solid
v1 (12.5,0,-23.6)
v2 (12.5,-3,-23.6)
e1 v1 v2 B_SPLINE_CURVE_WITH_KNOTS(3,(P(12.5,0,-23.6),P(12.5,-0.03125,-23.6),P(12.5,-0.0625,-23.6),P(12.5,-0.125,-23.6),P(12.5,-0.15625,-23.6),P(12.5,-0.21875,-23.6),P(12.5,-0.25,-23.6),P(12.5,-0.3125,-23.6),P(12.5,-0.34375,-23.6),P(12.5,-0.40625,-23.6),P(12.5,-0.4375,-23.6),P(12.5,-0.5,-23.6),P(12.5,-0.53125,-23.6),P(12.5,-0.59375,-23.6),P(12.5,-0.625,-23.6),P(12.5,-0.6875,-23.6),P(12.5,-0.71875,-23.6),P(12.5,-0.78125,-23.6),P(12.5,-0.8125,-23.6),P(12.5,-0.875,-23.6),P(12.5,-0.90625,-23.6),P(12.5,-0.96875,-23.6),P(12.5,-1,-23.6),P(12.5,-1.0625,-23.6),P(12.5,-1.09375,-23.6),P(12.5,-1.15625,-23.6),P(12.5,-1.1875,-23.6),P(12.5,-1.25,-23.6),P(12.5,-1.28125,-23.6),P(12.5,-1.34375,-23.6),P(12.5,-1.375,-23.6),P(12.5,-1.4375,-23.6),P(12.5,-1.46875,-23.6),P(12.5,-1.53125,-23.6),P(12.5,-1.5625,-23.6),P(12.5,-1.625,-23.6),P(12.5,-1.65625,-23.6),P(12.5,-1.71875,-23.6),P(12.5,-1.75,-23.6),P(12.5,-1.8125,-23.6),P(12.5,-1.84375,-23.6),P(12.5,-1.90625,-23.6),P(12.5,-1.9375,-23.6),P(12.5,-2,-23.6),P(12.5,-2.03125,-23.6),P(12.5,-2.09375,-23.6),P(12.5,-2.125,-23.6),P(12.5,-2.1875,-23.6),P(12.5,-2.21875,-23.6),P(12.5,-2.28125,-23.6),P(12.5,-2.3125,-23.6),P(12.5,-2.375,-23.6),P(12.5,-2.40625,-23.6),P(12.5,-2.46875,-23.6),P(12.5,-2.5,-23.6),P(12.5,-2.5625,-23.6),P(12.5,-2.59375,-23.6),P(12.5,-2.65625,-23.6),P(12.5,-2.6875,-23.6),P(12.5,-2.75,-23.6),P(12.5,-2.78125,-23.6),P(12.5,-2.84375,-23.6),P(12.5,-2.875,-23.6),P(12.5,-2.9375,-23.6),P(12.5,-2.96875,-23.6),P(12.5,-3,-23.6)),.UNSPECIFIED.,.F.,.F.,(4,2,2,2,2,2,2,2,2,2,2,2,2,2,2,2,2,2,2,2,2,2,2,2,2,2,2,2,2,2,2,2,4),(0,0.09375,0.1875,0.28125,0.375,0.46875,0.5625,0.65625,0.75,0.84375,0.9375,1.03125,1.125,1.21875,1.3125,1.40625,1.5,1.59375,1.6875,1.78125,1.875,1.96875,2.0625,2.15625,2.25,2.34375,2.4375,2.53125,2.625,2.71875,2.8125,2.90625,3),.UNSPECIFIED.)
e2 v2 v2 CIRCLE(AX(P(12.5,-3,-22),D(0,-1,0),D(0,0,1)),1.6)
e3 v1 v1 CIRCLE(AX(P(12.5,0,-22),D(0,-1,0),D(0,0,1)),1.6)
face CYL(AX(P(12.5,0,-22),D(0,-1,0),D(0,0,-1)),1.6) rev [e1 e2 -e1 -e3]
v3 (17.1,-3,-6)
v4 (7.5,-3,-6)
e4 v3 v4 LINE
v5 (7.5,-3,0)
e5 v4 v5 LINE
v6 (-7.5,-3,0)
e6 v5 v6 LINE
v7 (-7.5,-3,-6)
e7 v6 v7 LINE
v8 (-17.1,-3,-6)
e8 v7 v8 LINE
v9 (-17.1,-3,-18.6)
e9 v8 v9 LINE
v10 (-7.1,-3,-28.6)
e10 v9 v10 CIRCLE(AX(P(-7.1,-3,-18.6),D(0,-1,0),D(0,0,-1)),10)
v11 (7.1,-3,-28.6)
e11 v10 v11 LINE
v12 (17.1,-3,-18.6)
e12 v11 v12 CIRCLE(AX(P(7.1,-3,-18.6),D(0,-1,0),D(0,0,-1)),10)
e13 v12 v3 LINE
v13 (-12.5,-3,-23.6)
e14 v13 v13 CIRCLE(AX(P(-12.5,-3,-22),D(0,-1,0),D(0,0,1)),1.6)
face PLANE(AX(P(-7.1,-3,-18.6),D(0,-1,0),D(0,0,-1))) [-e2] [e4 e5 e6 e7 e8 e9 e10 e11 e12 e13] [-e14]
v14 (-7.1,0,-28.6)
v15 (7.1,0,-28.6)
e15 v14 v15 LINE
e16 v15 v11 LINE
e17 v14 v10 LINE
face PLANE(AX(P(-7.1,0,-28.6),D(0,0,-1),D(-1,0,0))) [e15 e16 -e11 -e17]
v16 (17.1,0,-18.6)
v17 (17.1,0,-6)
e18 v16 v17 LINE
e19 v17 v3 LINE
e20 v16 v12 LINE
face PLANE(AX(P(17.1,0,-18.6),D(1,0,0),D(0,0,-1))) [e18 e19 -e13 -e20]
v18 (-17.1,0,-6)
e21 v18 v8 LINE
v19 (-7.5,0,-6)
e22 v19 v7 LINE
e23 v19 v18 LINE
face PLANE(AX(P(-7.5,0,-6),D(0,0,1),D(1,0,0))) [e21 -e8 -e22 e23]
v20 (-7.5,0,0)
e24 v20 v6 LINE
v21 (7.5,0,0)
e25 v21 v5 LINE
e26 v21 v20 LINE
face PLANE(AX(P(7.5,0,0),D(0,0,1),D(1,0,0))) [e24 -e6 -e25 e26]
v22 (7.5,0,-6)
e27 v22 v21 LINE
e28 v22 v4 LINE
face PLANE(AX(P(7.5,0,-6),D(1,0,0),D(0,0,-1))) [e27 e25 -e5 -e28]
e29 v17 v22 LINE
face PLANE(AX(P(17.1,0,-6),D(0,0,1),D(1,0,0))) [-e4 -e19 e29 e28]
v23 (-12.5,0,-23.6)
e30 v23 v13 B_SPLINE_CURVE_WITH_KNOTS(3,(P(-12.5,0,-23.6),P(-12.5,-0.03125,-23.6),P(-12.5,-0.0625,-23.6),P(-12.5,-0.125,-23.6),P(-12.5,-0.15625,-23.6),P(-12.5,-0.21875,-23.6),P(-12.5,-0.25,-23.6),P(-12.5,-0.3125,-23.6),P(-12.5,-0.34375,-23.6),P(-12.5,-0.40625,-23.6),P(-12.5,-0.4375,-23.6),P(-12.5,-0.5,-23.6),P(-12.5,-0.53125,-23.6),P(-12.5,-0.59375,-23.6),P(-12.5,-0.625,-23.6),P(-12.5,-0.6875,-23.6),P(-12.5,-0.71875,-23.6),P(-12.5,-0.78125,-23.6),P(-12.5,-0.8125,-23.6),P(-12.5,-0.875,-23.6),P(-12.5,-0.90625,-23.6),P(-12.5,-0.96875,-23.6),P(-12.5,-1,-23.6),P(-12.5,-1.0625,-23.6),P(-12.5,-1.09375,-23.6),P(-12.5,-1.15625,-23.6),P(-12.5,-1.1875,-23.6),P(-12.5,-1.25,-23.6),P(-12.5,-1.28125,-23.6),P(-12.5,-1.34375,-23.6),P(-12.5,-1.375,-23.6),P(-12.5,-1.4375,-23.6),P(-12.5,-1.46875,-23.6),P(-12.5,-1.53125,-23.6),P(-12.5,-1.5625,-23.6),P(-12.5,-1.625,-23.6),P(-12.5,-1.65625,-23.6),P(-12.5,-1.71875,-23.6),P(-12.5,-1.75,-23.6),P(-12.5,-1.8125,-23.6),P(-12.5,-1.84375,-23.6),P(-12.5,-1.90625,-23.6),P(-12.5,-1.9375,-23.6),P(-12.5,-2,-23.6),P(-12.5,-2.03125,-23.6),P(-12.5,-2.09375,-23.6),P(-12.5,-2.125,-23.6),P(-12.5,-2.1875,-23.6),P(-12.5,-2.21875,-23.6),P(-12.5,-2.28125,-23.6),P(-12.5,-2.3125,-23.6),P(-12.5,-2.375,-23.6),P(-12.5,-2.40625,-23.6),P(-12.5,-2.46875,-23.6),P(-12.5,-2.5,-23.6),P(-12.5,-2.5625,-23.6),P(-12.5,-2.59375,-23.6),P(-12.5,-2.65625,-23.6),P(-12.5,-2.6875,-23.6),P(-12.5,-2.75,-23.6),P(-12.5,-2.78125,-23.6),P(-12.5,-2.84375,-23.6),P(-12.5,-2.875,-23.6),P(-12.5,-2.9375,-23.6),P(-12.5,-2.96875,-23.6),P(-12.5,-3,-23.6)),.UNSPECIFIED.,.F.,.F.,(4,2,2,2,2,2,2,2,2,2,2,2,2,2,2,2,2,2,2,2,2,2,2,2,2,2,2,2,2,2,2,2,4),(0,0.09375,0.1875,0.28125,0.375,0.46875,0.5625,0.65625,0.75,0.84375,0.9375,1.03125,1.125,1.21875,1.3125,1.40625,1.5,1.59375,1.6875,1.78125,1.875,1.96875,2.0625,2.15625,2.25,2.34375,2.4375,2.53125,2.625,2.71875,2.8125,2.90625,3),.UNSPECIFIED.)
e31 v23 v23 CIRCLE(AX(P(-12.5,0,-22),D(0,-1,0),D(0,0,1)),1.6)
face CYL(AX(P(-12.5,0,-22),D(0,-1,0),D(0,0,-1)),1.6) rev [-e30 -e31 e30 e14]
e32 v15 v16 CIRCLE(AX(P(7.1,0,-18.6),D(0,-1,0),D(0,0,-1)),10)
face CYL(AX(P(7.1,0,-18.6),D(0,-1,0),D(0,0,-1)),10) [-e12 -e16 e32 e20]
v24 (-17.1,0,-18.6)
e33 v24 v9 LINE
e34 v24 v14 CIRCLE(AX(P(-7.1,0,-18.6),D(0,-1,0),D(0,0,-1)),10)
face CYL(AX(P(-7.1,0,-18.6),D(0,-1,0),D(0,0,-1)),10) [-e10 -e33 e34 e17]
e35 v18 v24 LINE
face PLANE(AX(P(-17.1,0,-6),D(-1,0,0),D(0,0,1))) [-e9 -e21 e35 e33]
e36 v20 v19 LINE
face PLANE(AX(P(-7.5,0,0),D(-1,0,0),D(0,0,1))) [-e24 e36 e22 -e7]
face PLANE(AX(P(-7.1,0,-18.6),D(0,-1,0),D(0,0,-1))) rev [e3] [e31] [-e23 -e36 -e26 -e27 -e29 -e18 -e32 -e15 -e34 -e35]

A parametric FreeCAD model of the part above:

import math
import FreeCAD as App
import Part
import Sketcher
from FreeCAD import Vector
Q = App.Units.Quantity

doc = App.newDocument("Part")
body = doc.addObject("PartDesign::Body", "Body")

sketch1 = doc.addObject("Sketcher::SketchObject", "Sketch")
body.addObject(sketch1)
sketch1.AttachmentSupport = (doc.XZ_Plane, [""])
sketch1.MapMode = "FlatFace"
sketch1.AttachmentOffset = App.Placement(Vector(0, 0, 3), App.Rotation())
sketch1.addGeometry([
    Part.LineSegment(Vector(-7.1, -28.6, 0), Vector(7.1, -28.6, 0)),
    Part.ArcOfCircle(Part.Circle(Vector(7.1, -18.6, 0), Vector(0, 0, 1), 10), math.radians(-90), math.radians(0)),
    Part.LineSegment(Vector(17.1, -18.6, 0), Vector(17.1, -6, 0)),
    Part.LineSegment(Vector(17.1, -6, 0), Vector(7.5, -6, 0)),
    Part.LineSegment(Vector(7.5, -6, 0), Vector(7.5, 0, 0)),
    Part.LineSegment(Vector(7.5, 0, 0), Vector(-7.5, 0, 0)),
    Part.LineSegment(Vector(-7.5, 0, 0), Vector(-7.5, -6, 0)),
    Part.LineSegment(Vector(-7.5, -6, 0), Vector(-17.1, -6, 0)),
    Part.LineSegment(Vector(-17.1, -6, 0), Vector(-17.1, -18.6, 0)),
    Part.ArcOfCircle(Part.Circle(Vector(-7.1, -18.6, 0), Vector(0, 0, 1), 10), math.radians(180), math.radians(270)),
    Part.Circle(Vector(-12.5, -22, 0), Vector(0, 0, 1), 1.6),
    Part.Circle(Vector(12.5, -22, 0), Vector(0, 0, 1), 1.6),
], False)
sketch1.addConstraint([
    Sketcher.Constraint("Tangent", 0, 2, 1, 1),
    Sketcher.Constraint("Tangent", 1, 2, 2, 1),
    Sketcher.Constraint("Coincident", 2, 2, 3, 1),
    Sketcher.Constraint("Coincident", 3, 2, 4, 1),
    Sketcher.Constraint("Coincident", 4, 2, 5, 1),
    Sketcher.Constraint("Coincident", 5, 2, 6, 1),
    Sketcher.Constraint("Coincident", 6, 2, 7, 1),
    Sketcher.Constraint("Coincident", 7, 2, 8, 1),
    Sketcher.Constraint("Tangent", 8, 2, 9, 1),
    Sketcher.Constraint("Tangent", 9, 2, 0, 1),
    Sketcher.Constraint("Horizontal", 0),
    Sketcher.Constraint("Vertical", 2),
    Sketcher.Constraint("Horizontal", 3),
    Sketcher.Constraint("Vertical", 4),
    Sketcher.Constraint("Horizontal", 5),
    Sketcher.Constraint("Vertical", 6),
    Sketcher.Constraint("Horizontal", 7),
    Sketcher.Constraint("Vertical", 8),
    Sketcher.Constraint("Equal", 1, 9),
    Sketcher.Constraint("Equal", 10, 11),
    Sketcher.Constraint("Symmetric", 4, 2, 5, 2, -1, 1),
    Sketcher.Constraint("Symmetric", 10, 3, 11, 3, -2),
    Sketcher.Constraint("Symmetric", 2, 2, 7, 2, -2),
    Sketcher.Constraint("Radius", 1, Q("10 mm")),
    Sketcher.Constraint("Diameter", 10, Q("3.2 mm")),
    Sketcher.Constraint("DistanceX", 5, 2, 5, 1, Q("15 mm")),
    Sketcher.Constraint("DistanceY", 4, 1, 4, 2, Q("6 mm")),
    Sketcher.Constraint("DistanceX", 0, 1, 0, 2, Q("14.2 mm")),
    Sketcher.Constraint("DistanceY", 2, 1, 2, 2, Q("12.6 mm")),
    Sketcher.Constraint("DistanceY", 10, 3, -1, 1, Q("22 mm")),
    Sketcher.Constraint("DistanceX", 10, 3, 11, 3, Q("25 mm")),
])
pad1 = doc.addObject("PartDesign::Pad", "Pad")
body.addObject(pad1)
pad1.Profile = sketch1
pad1.Length = 3
pad1.Reversed = True

doc.recompute()
